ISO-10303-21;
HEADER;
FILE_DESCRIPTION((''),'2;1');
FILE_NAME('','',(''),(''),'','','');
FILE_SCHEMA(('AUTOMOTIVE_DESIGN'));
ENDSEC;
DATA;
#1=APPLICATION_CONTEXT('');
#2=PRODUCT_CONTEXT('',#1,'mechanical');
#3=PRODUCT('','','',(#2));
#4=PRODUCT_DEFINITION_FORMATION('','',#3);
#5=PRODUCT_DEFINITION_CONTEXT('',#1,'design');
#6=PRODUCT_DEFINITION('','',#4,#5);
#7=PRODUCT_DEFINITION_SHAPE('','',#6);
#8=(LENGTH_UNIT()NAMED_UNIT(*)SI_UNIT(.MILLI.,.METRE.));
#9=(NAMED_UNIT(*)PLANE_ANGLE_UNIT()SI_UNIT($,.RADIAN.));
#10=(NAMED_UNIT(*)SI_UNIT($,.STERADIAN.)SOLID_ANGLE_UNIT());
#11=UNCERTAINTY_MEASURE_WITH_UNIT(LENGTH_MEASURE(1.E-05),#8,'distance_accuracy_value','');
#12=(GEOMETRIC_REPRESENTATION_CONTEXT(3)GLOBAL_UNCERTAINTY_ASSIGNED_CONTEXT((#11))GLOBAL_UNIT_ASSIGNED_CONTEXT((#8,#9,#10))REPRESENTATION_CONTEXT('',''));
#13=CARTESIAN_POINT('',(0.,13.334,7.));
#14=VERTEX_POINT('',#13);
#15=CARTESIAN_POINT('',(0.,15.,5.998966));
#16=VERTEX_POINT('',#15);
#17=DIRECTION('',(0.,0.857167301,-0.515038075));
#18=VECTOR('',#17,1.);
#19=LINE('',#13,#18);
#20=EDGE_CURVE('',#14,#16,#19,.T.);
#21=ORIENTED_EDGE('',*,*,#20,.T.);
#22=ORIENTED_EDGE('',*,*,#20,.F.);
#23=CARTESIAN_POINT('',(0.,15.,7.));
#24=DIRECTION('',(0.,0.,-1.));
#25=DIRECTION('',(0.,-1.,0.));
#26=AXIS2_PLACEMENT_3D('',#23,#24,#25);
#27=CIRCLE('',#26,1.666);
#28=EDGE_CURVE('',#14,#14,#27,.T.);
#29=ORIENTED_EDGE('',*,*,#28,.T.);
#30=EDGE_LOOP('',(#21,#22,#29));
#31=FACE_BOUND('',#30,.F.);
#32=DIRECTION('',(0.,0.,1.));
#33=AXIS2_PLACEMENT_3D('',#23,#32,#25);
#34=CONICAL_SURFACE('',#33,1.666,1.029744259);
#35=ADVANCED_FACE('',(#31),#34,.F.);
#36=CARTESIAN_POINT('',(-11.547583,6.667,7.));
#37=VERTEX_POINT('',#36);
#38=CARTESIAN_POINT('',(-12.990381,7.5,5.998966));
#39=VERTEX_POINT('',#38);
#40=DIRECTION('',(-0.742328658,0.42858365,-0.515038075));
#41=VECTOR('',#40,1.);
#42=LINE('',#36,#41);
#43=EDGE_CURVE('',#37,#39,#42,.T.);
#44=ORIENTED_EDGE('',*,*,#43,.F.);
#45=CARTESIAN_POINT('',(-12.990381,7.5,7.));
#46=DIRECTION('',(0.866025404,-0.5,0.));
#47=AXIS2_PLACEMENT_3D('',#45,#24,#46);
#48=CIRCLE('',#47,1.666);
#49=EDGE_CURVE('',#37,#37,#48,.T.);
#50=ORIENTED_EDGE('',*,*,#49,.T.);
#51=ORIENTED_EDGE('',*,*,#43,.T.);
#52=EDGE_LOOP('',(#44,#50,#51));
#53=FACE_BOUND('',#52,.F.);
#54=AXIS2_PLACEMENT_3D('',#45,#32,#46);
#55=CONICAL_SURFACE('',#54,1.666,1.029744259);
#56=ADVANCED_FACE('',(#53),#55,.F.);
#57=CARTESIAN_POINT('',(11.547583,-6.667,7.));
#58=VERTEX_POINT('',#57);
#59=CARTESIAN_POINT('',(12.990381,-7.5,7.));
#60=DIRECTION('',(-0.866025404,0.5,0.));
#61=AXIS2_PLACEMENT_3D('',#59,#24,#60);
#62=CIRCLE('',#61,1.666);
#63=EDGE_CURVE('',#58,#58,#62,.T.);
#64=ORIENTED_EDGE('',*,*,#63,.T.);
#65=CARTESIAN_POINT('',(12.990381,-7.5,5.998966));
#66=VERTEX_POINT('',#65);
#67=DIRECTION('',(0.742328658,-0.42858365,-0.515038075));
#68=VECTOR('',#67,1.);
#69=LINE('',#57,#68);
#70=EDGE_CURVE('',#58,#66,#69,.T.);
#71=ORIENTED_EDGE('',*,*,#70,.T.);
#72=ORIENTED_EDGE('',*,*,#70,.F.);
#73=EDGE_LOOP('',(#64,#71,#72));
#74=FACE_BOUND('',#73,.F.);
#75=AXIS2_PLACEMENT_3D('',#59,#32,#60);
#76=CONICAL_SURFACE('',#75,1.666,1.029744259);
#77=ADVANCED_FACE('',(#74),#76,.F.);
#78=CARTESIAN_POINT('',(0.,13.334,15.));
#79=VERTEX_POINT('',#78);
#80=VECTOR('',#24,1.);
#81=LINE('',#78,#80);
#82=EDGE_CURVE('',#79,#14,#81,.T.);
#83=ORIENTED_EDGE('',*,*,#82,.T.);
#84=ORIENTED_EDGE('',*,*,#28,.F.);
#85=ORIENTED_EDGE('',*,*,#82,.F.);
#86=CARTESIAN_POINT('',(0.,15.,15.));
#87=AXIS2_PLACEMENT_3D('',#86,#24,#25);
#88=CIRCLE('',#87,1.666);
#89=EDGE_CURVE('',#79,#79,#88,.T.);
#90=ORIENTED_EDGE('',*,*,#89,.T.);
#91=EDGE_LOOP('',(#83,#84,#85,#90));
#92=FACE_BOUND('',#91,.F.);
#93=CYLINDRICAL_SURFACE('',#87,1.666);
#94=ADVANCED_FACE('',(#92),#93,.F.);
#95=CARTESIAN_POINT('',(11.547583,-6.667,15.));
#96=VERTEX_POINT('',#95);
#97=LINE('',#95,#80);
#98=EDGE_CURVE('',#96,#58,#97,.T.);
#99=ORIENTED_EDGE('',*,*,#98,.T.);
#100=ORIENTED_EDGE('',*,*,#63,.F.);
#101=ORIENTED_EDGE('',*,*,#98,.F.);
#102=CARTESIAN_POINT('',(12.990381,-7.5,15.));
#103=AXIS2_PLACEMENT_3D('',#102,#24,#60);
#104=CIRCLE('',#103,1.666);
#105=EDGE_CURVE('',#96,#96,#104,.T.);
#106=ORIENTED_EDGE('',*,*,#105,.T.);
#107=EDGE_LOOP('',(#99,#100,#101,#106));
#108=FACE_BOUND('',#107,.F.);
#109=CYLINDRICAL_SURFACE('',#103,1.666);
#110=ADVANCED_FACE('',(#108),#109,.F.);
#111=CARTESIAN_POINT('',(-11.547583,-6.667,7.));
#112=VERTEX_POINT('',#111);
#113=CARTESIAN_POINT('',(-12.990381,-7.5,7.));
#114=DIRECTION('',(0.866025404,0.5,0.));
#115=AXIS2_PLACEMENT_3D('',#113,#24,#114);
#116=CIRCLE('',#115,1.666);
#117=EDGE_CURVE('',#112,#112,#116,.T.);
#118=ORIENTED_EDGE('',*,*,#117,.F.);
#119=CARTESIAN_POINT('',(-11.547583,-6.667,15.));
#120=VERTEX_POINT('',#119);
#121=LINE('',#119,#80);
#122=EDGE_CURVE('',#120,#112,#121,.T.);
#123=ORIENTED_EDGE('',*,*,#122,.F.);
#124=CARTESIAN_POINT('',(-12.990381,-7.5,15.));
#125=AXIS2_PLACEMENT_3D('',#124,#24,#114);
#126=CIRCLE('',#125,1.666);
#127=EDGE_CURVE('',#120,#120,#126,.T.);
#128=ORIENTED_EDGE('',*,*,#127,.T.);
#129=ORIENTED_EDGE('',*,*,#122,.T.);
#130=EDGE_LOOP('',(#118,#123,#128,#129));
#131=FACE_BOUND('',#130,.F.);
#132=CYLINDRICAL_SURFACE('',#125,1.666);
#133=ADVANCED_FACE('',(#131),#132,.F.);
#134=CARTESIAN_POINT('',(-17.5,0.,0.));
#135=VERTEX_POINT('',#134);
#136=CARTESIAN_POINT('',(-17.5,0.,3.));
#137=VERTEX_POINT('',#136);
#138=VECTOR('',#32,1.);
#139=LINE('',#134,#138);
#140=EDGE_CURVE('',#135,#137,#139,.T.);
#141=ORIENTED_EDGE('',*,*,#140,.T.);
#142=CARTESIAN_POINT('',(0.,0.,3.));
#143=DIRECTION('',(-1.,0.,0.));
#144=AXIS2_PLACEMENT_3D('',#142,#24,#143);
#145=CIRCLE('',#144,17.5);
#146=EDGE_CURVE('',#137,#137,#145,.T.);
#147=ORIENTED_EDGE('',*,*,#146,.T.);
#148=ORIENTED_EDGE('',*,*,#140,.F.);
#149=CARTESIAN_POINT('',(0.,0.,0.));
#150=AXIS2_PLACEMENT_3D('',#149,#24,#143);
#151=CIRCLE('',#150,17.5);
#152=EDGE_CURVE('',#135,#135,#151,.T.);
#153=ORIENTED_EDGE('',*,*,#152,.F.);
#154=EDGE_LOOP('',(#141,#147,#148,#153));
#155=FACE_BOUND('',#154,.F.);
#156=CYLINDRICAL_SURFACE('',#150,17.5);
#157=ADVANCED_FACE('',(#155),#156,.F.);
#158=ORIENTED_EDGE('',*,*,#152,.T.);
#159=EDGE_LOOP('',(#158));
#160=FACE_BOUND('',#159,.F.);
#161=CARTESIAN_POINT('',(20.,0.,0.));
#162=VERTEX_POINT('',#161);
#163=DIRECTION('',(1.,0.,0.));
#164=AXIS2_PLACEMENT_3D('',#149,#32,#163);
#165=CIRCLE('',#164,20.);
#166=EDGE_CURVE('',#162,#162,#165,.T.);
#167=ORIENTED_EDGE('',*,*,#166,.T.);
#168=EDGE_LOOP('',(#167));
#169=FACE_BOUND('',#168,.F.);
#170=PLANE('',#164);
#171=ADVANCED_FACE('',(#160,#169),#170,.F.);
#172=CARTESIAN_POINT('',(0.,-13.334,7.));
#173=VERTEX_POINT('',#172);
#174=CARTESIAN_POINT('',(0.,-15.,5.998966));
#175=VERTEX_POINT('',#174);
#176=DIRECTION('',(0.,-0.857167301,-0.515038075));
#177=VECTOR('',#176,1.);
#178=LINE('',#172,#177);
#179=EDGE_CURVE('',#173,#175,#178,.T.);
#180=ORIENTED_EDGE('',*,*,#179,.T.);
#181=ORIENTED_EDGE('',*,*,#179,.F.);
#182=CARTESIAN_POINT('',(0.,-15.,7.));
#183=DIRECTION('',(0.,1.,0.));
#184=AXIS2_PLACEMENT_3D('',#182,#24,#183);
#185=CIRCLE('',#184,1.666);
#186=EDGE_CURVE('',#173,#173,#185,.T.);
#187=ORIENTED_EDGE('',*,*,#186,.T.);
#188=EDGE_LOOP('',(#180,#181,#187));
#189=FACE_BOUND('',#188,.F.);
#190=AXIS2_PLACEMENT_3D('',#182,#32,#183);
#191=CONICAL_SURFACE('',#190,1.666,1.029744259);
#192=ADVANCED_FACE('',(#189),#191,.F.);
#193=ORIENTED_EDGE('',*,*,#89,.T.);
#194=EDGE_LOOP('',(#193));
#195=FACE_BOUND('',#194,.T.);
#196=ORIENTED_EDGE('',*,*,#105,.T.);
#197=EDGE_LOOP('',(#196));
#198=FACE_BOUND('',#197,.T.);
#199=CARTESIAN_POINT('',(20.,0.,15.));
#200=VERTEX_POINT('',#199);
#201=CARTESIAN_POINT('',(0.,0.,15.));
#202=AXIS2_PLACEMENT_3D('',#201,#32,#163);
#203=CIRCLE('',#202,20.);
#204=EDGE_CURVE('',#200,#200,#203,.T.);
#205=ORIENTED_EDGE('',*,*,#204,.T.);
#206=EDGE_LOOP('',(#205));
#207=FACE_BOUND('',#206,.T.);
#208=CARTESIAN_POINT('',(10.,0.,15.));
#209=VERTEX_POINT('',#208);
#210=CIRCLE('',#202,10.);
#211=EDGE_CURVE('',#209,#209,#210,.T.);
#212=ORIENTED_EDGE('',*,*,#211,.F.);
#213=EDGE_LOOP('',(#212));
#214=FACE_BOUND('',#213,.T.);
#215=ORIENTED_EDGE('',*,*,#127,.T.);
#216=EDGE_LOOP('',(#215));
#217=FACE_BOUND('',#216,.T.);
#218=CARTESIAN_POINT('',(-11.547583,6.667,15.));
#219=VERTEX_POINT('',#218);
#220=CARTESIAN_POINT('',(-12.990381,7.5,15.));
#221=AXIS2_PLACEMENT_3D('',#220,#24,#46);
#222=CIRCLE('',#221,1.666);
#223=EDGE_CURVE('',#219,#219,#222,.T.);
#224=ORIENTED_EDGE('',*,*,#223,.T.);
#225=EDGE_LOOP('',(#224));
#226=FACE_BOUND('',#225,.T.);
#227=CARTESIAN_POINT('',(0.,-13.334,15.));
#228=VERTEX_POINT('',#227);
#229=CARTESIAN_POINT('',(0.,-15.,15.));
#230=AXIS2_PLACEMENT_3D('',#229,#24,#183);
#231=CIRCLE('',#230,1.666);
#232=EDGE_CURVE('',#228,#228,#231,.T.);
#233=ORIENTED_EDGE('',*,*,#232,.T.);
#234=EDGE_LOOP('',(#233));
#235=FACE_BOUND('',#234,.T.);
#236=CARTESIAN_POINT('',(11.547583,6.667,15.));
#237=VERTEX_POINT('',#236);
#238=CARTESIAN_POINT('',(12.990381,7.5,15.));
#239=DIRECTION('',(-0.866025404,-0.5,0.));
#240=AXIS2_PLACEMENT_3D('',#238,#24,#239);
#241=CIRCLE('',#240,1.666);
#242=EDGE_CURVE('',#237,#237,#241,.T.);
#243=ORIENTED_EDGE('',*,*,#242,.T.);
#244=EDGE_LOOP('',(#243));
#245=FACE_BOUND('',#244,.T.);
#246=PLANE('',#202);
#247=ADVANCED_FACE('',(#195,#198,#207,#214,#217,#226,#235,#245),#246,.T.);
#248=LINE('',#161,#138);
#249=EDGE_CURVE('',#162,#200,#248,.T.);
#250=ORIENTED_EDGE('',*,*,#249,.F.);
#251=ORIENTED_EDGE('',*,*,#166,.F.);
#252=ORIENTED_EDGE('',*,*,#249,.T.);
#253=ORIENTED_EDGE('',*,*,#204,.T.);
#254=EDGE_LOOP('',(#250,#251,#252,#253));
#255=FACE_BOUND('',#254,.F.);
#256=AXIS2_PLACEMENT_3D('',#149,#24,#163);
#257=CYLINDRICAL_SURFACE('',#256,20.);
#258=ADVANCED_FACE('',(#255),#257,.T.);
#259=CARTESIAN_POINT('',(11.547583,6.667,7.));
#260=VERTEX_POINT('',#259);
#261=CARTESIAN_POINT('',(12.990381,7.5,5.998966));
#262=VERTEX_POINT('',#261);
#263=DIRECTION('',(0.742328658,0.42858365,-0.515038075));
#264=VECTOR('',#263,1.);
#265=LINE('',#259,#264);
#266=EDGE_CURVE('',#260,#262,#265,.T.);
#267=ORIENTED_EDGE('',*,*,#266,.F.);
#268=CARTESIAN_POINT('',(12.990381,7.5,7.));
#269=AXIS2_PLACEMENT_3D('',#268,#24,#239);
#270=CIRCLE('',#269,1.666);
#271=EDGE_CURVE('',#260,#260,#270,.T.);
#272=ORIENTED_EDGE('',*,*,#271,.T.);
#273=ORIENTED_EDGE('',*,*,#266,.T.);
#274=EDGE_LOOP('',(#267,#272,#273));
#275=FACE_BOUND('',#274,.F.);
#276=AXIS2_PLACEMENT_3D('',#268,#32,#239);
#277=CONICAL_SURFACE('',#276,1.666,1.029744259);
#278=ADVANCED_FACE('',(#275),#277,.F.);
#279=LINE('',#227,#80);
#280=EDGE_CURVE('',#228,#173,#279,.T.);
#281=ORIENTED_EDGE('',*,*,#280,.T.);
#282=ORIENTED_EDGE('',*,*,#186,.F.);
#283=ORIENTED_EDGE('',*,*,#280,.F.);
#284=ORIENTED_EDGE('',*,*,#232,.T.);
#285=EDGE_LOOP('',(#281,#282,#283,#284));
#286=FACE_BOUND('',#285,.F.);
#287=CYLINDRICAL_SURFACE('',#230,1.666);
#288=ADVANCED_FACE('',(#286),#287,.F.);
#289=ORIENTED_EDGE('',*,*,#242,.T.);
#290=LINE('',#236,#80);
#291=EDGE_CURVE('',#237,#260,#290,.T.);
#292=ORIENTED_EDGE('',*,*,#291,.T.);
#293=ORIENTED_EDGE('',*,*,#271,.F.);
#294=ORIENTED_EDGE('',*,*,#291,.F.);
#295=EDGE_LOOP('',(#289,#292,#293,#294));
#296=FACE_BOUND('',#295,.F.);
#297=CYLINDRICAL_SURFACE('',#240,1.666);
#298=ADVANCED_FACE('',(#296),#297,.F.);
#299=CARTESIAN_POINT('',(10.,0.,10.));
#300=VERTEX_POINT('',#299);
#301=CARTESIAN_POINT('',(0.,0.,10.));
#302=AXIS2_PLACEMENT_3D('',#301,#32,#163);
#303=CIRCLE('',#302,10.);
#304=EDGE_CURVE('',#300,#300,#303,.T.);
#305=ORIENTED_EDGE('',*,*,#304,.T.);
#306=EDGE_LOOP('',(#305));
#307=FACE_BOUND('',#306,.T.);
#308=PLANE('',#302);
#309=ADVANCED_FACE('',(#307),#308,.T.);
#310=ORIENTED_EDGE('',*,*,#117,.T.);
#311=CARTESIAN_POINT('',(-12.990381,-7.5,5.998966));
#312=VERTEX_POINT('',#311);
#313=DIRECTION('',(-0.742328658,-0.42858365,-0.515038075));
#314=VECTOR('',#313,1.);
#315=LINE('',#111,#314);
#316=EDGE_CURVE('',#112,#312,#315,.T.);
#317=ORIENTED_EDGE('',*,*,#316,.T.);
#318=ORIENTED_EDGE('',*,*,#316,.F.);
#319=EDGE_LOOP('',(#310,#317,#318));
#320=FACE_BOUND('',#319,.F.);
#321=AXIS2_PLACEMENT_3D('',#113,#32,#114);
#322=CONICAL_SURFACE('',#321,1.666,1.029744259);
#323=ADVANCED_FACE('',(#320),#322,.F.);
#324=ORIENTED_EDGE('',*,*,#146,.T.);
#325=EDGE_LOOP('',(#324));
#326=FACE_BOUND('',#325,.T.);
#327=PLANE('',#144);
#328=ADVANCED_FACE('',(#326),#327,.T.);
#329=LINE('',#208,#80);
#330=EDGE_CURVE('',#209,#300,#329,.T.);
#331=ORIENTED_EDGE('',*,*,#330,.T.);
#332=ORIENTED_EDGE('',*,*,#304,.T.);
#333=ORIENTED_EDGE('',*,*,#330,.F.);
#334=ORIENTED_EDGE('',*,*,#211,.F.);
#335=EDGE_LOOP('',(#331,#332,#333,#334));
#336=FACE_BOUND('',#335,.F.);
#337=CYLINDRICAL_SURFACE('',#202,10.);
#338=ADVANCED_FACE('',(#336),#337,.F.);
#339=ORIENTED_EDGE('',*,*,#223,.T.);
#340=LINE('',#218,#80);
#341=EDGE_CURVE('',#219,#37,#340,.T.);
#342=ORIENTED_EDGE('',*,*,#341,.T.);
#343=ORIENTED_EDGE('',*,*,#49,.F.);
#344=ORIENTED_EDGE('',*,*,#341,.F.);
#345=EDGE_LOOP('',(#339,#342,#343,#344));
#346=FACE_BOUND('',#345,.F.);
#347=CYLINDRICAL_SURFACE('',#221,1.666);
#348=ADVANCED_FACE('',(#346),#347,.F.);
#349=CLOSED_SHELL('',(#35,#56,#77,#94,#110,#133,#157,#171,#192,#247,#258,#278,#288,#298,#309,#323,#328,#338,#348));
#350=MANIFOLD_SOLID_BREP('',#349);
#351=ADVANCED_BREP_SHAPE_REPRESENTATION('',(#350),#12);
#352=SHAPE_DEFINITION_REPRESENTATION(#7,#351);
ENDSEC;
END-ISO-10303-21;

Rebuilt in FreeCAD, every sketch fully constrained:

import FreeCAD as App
import Part
import Sketcher

doc = App.newDocument("Part")
body = doc.addObject("PartDesign::Body", "Body")

# Sketch on XY plane
sketch1 = doc.addObject("Sketcher::SketchObject", "Sketch")
body.addObject(sketch1)
sketch1.AttachmentSupport = (doc.XY_Plane, [""])
sketch1.MapMode = "FlatFace"
sketch1.addGeometry(Part.Circle(App.Vector(0, 0, 0), App.Vector(0, 0, 1), 20), False)
sketch1.addConstraint([
    Sketcher.Constraint("Coincident", 0, 3, -1, 1),
    Sketcher.Constraint("Diameter", 0, 40.0),
])
pad1 = doc.addObject("PartDesign::Pad", "Pad")
body.addObject(pad1)
pad1.Profile = sketch1
pad1.Length = 15

# Sketch on XY plane
sketch2 = doc.addObject("Sketcher::SketchObject", "Sketch001")
body.addObject(sketch2)
sketch2.AttachmentSupport = (doc.XY_Plane, [""])
sketch2.MapMode = "FlatFace"
sketch2.AttachmentOffset = App.Placement(App.Vector(0, 0, 15), App.Rotation())
sketch2.addGeometry(Part.Circle(App.Vector(0, 0, 0), App.Vector(0, 0, 1), 10), False)
sketch2.addConstraint([
    Sketcher.Constraint("Coincident", 0, 3, -1, 1),
    Sketcher.Constraint("Diameter", 0, 20.0),
])
pocket1 = doc.addObject("PartDesign::Pocket", "Pocket")
body.addObject(pocket1)
pocket1.Profile = sketch2
pocket1.Length = 5

# Sketch on XY plane
sketch3 = doc.addObject("Sketcher::SketchObject", "Sketch002")
body.addObject(sketch3)
sketch3.AttachmentSupport = (doc.XY_Plane, [""])
sketch3.MapMode = "FlatFace"
sketch3.AttachmentOffset = App.Placement(App.Vector(0, 0, 15), App.Rotation())
sketch3.addGeometry(Part.Circle(App.Vector(0, 15, 0), App.Vector(0, 0, 1), 1.666), False)
sketch3.addConstraint([
    Sketcher.Constraint("PointOnObject", 0, 3, -2),
    Sketcher.Constraint("Diameter", 0, 3.332),
    Sketcher.Constraint("DistanceY", -1, 1, 0, 3, 15.0),
])
doc.recompute()
hole = doc.addObject("PartDesign::Hole", "Hole")
body.addObject(hole)
hole.Profile = sketch3
hole.ThreadType = "None"
hole.Diameter = 3.332
hole.DepthType = "Dimension"
hole.Depth = 8
hole.DrillPoint = "Angled"
hole.DrillPointAngle = 118
doc.recompute()

polarpattern = doc.addObject("PartDesign::PolarPattern", "PolarPattern")
body.addObject(polarpattern)
polarpattern.Originals = [hole]
polarpattern.Axis = (doc.Z_Axis, [""])
polarpattern.Angle = 360
polarpattern.Occurrences = 6
body.Tip = polarpattern

# Sketch on XY plane
sketch4 = doc.addObject("Sketcher::SketchObject", "Sketch003")
body.addObject(sketch4)
sketch4.AttachmentSupport = (doc.XY_Plane, [""])
sketch4.MapMode = "FlatFace"
sketch4.addGeometry(Part.Circle(App.Vector(0, 0, 0), App.Vector(0, 0, 1), 17.5), False)
sketch4.addConstraint([
    Sketcher.Constraint("Coincident", 0, 3, -1, 1),
    Sketcher.Constraint("Diameter", 0, 35.0),
])
pocket2 = doc.addObject("PartDesign::Pocket", "Pocket001")
body.addObject(pocket2)
pocket2.Profile = sketch4
pocket2.Length = 3
pocket2.Reversed = True

doc.recompute()
